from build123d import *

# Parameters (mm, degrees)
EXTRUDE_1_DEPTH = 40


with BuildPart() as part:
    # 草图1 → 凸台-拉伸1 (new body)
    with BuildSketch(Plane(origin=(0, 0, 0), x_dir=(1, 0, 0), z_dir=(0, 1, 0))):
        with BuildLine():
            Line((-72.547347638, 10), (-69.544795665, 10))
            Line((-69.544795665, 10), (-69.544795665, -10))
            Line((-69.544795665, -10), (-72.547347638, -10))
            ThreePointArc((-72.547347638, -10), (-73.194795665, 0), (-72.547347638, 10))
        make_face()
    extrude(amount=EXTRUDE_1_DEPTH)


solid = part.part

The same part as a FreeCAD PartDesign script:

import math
import FreeCAD as App
import Part
import Sketcher

V = App.Vector

doc = App.newDocument("Part")
body = doc.addObject("PartDesign::Body", "Body")

# Sketch on XZ plane
sketch1 = doc.addObject("Sketcher::SketchObject", "Sketch")
body.addObject(sketch1)
sketch1.AttachmentSupport = (doc.XZ_Plane, [""])
sketch1.MapMode = "FlatFace"
sketch1.addGeometry([
    Part.LineSegment(V(-69.544796, -10, 0), V(-72.547348, -10, 0)),
    Part.ArcOfCircle(Part.Circle(V(4.355204, 0, 0), V(0, 0, 1), 77.55), math.radians(172.591133), math.radians(187.408867)),
    Part.LineSegment(V(-72.547348, 10, 0), V(-69.544796, 10, 0)),
    Part.LineSegment(V(-69.544796, 10, 0), V(-69.544796, -10, 0)),
], False)
sketch1.addConstraint([
    Sketcher.Constraint("Coincident", 0, 2, 1, 2),
    Sketcher.Constraint("Coincident", 1, 1, 2, 1),
    Sketcher.Constraint("Coincident", 2, 2, 3, 1),
    Sketcher.Constraint("Coincident", 3, 2, 0, 1),
    Sketcher.Constraint("Horizontal", 0),
    Sketcher.Constraint("Horizontal", 2),
    Sketcher.Constraint("Vertical", 3),
    Sketcher.Constraint("Symmetric", 0, 2, 1, 1, -1),
    Sketcher.Constraint("DistanceY", 3, 2, 3, 1, 20.0),
    Sketcher.Constraint("Radius", 1, 77.55),
    Sketcher.Constraint("DistanceX", 2, 2, 1, 3, 73.9),
    Sketcher.Constraint("DistanceX", -1, 1, 1, 3, 4.355204),
])
pad1 = doc.addObject("PartDesign::Pad", "Pad")
body.addObject(pad1)
pad1.Profile = sketch1
pad1.Length = 40
pad1.Reversed = True

doc.recompute()
